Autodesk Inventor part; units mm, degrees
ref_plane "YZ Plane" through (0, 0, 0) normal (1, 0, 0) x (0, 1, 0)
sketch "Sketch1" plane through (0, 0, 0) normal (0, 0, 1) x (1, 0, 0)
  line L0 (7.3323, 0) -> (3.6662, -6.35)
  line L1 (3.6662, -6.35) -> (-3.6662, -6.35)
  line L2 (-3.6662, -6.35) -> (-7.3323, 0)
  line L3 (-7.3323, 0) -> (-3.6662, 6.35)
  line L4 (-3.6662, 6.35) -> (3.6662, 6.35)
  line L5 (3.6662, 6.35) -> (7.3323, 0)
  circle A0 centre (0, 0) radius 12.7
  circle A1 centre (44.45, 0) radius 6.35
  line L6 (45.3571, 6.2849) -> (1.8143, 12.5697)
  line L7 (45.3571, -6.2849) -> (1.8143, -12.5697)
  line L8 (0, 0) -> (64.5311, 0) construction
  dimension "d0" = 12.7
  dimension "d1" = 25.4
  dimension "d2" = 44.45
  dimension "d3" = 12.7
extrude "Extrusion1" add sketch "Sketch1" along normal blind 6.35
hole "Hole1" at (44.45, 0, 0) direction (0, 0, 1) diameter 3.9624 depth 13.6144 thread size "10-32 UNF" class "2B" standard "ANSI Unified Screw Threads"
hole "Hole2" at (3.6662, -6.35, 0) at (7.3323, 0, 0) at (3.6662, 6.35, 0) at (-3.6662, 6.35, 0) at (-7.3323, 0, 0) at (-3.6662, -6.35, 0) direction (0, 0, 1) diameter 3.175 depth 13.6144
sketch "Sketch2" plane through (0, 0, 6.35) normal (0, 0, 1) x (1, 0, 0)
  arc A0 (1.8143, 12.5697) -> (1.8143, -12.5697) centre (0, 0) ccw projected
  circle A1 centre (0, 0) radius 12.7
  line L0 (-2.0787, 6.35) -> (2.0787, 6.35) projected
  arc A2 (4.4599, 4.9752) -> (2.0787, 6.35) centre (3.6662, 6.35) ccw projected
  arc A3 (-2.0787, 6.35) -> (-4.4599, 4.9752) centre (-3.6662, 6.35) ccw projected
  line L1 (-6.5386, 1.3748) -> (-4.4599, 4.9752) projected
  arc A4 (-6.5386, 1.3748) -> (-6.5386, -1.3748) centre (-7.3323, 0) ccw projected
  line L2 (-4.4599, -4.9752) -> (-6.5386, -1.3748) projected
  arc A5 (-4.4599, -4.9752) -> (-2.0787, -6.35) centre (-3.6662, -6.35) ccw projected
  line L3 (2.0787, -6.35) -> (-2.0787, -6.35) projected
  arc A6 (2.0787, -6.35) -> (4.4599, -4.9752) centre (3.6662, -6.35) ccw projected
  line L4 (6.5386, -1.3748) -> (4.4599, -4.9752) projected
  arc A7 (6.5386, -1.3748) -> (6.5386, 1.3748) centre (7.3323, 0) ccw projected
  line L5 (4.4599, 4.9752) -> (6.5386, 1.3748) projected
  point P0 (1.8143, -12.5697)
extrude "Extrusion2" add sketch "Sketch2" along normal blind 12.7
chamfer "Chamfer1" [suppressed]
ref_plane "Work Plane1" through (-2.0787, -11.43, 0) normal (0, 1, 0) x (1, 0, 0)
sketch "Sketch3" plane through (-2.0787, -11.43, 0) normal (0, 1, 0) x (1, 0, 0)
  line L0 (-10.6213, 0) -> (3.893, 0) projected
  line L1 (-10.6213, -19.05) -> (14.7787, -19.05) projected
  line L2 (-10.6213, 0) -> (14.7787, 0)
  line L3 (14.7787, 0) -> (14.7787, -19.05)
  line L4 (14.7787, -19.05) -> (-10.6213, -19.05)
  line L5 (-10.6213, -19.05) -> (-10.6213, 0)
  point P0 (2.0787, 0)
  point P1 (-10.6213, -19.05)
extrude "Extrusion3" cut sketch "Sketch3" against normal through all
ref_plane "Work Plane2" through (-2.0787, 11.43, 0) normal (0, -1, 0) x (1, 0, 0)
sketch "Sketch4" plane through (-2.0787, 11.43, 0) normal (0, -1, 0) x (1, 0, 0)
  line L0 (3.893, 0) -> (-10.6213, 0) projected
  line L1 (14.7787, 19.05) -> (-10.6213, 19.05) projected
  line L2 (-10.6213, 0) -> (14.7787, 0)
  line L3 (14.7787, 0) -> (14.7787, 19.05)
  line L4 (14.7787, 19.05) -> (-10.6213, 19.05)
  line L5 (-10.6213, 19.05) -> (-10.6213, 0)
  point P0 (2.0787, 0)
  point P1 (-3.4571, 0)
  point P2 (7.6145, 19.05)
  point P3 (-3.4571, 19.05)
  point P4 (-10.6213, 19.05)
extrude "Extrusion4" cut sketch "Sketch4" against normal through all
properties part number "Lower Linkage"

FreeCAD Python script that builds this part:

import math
import FreeCAD as App
import Part
import Sketcher
from FreeCAD import Vector
Q = App.Units.Quantity


def add_polygon(sketch, points):
    """Adds a closed chain of lines whose ends are joined by coincident constraints."""
    first, n = sketch.GeometryCount, len(points)
    for a, b in zip(points, points[1:] + points[:1]):
        sketch.addGeometry(Part.LineSegment(App.Vector(*a, 0), App.Vector(*b, 0)), False)
    for i in range(n):
        sketch.addConstraint(Sketcher.Constraint("Coincident", first + i, 2, first + (i + 1) % n, 1))

doc = App.newDocument("Part")
body = doc.addObject("PartDesign::Body", "Body")

# Sketch on XY plane
sketch1 = body.newObject("Sketcher::SketchObject", "Sketch")
sketch1.AttachmentSupport = (doc.getObject("XY_Plane"), [""])
sketch1.MapMode = "FlatFace"
sketch1.addGeometry(Part.ArcOfCircle(Part.Circle(Vector(0, 0, 0), Vector(0, 0, 1), 12.7), math.radians(81.7867), math.radians(278.2133)), False)  # 0
sketch1.addGeometry(Part.LineSegment(Vector(1.8143, -12.5697, 0), Vector(45.3571, -6.2849, 0)), False)  # 1
sketch1.addGeometry(Part.ArcOfCircle(Part.Circle(Vector(44.45, 0, 0), Vector(0, 0, 1), 6.35), math.radians(-81.787211), math.radians(81.787211)), False)  # 2
sketch1.addGeometry(Part.LineSegment(Vector(45.3571, 6.2849, 0), Vector(1.8143, 12.5697, 0)), False)  # 3
add_polygon(sketch1, [(3.6662, 6.35), (7.3323, 0), (3.6662, -6.35), (-3.6662, -6.35), (-7.3323, 0), (-3.6662, 6.35)])  # lines 4-9
sketch1.addConstraint([
    Sketcher.Constraint("Tangent", 0, 2, 1, 1),
    Sketcher.Constraint("Tangent", 1, 2, 2, 1),
    Sketcher.Constraint("Tangent", 2, 2, 3, 1),
    Sketcher.Constraint("Tangent", 3, 2, 0, 1),
    Sketcher.Constraint("Horizontal", 6),
    Sketcher.Constraint("Horizontal", 9),
    Sketcher.Constraint("Coincident", 0, 3, -1, 1),
    Sketcher.Constraint("Symmetric", 4, 2, 7, 2, -1, 1),
    Sketcher.Constraint("Symmetric", 5, 2, 8, 2, -1, 1),
    Sketcher.Constraint("PointOnObject", 2, 3, -1),
    Sketcher.Constraint("PointOnObject", 4, 2, -1),
    Sketcher.Constraint("Parallel", 4, 7),
    Sketcher.Constraint("Vertical", 6, 2, 8, 2),
    Sketcher.Constraint("Radius", 0, Q("0.5 in")),
    Sketcher.Constraint("Radius", 2, Q("0.25 in")),
    Sketcher.Constraint("DistanceY", 6, 2, 8, 2, Q("0.5 in")),
    Sketcher.Constraint("DistanceX", -1, 1, 2, 3, Q("1.75 in")),
    Sketcher.Constraint("Angle", 4, Q("-60.0005 deg")),
    Sketcher.Constraint("DistanceX", 6, 2, 4, 2, Q("0.433 in")),
])
pad1 = body.newObject("PartDesign::Pad", "Pad")
pad1.Profile = sketch1
pad1.Length = Q("0.25 in")

# Sketch on XY plane
sketch2 = body.newObject("Sketcher::SketchObject", "Sketch001")
sketch2.AttachmentSupport = (doc.getObject("XY_Plane"), [""])
sketch2.MapMode = "FlatFace"
sketch2.addGeometry(Part.Circle(Vector(44.45, 0, 0), Vector(0, 0, 1), 1.9812), False)
sketch2.addConstraint([
    Sketcher.Constraint("PointOnObject", 0, 3, -1),
    Sketcher.Constraint("Diameter", 0, Q("0.156 in")),
    Sketcher.Constraint("DistanceX", -1, 1, 0, 3, Q("1.75 in")),
])
doc.recompute()
hole = body.newObject("PartDesign::Hole", "Hole")
hole.Profile = sketch2
hole.ThreadType = "None"
hole.Diameter = Q("0.156 in")
hole.DepthType = "Dimension"
hole.Depth = Q("0.536 in")
hole.DrillPoint = "Flat"
hole.Reversed = True

# Sketch on XY plane
sketch3 = body.newObject("Sketcher::SketchObject", "Sketch002")
sketch3.AttachmentSupport = (doc.getObject("XY_Plane"), [""])
sketch3.MapMode = "FlatFace"
sketch3.addGeometry([
    Part.Circle(Vector(3.6662, -6.35, 0), Vector(0, 0, 1), 1.5875),  # 0
    Part.Circle(Vector(7.3323, 0, 0), Vector(0, 0, 1), 1.5875),  # 1
    Part.Circle(Vector(3.6662, 6.35, 0), Vector(0, 0, 1), 1.5875),  # 2
    Part.Circle(Vector(-3.6662, 6.35, 0), Vector(0, 0, 1), 1.5875),  # 3
    Part.Circle(Vector(-7.3323, 0, 0), Vector(0, 0, 1), 1.5875),  # 4
    Part.Circle(Vector(-3.6662, -6.35, 0), Vector(0, 0, 1), 1.5875),  # 5
], False)
sketch3.addConstraint([
    Sketcher.Constraint("Equal", 0, 1),
    Sketcher.Constraint("Equal", 1, 2),
    Sketcher.Constraint("Equal", 2, 3),
    Sketcher.Constraint("Equal", 3, 4),
    Sketcher.Constraint("Equal", 4, 5),
    Sketcher.Constraint("Symmetric", 0, 3, 3, 3, -1, 1),
    Sketcher.Constraint("Symmetric", 1, 3, 4, 3, -1, 1),
    Sketcher.Constraint("Symmetric", 2, 3, 5, 3, -1, 1),
    Sketcher.Constraint("Symmetric", 2, 3, 3, 3, -2),
    Sketcher.Constraint("PointOnObject", 1, 3, -1),
    Sketcher.Constraint("Diameter", 0, Q("0.125 in")),
    Sketcher.Constraint("DistanceY", 0, 3, 2, 3, Q("0.5 in")),
    Sketcher.Constraint("DistanceX", 3, 3, 1, 3, Q("0.433 in")),
    Sketcher.Constraint("DistanceX", -1, 1, 0, 3, Q("3.6662 mm")),
])
doc.recompute()
hole2 = body.newObject("PartDesign::Hole", "Hole001")
hole2.Profile = sketch3
hole2.ThreadType = "None"
hole2.Diameter = Q("0.125 in")
hole2.DepthType = "Dimension"
hole2.Depth = Q("0.536 in")
hole2.DrillPoint = "Flat"
hole2.Reversed = True

# Sketch on XY plane
sketch4 = body.newObject("Sketcher::SketchObject", "Sketch003")
sketch4.AttachmentSupport = (doc.getObject("XY_Plane"), [""])
sketch4.MapMode = "FlatFace"
sketch4.AttachmentOffset = App.Placement(Vector(0, 0, 0.25 * 25.4), App.Rotation())
sketch4.addGeometry([
    Part.Circle(Vector(0, 0, 0), Vector(0, 0, 1), 12.699962),  # 0
    Part.ArcOfCircle(Part.Circle(Vector(-3.6662, 6.35, 0), Vector(0, 0, 1), 1.5875), math.radians(0), math.radians(240.001286)),  # 1
    Part.LineSegment(Vector(-2.0787, 6.35, 0), Vector(2.0787, 6.35, 0)),  # 2
    Part.ArcOfCircle(Part.Circle(Vector(3.6662, 6.35, 0), Vector(0, 0, 1), 1.587462), math.radians(-60.001286), math.radians(180)),  # 3
    Part.LineSegment(Vector(4.4599, 4.9752, 0), Vector(6.5386, 1.3748, 0)),  # 4
    Part.ArcOfCircle(Part.Circle(Vector(7.3323, 0, 0), Vector(0, 0, 1), 1.587462), math.radians(-119.998714), math.radians(119.998714)),  # 5
    Part.LineSegment(Vector(6.5386, -1.3748, 0), Vector(4.4599, -4.9752, 0)),  # 6
    Part.ArcOfCircle(Part.Circle(Vector(3.6662, -6.35, 0), Vector(0, 0, 1), 1.5875), math.radians(180), math.radians(420.001286)),  # 7
    Part.LineSegment(Vector(2.0787, -6.35, 0), Vector(-2.0787, -6.35, 0)),  # 8
    Part.ArcOfCircle(Part.Circle(Vector(-3.6662, -6.35, 0), Vector(0, 0, 1), 1.587462), math.radians(119.998714), math.radians(360)),  # 9
    Part.LineSegment(Vector(-4.4599, -4.9752, 0), Vector(-6.5386, -1.3748, 0)),  # 10
    Part.ArcOfCircle(Part.Circle(Vector(-7.3323, 0, 0), Vector(0, 0, 1), 1.587462), math.radians(60.001286), math.radians(299.998714)),  # 11
    Part.LineSegment(Vector(-6.5386, 1.3748, 0), Vector(-4.4599, 4.9752, 0)),  # 12
], False)
sketch4.addConstraint([
    Sketcher.Constraint("Coincident", 1, 1, 2, 1),
    Sketcher.Constraint("Coincident", 2, 2, 3, 2),
    Sketcher.Constraint("Coincident", 3, 1, 4, 1),
    Sketcher.Constraint("Coincident", 4, 2, 5, 2),
    Sketcher.Constraint("Coincident", 5, 1, 6, 1),
    Sketcher.Constraint("Coincident", 6, 2, 7, 2),
    Sketcher.Constraint("Coincident", 7, 1, 8, 1),
    Sketcher.Constraint("Coincident", 8, 2, 9, 2),
    Sketcher.Constraint("Coincident", 9, 1, 10, 1),
    Sketcher.Constraint("Coincident", 10, 2, 11, 2),
    Sketcher.Constraint("Coincident", 11, 1, 12, 1),
    Sketcher.Constraint("Coincident", 12, 2, 1, 2),
    Sketcher.Constraint("Horizontal", 2),
    Sketcher.Constraint("Horizontal", 8),
    Sketcher.Constraint("Coincident", 0, 3, -1, 1),
    Sketcher.Constraint("Equal", 1, 3),
    Sketcher.Constraint("Equal", 3, 5),
    Sketcher.Constraint("Equal", 5, 7),
    Sketcher.Constraint("Equal", 7, 9),
    Sketcher.Constraint("Equal", 9, 11),
    Sketcher.Constraint("Symmetric", 1, 3, 7, 3, -1, 1),
    Sketcher.Constraint("Symmetric", 3, 3, 9, 3, -1, 1),
    Sketcher.Constraint("Symmetric", 5, 3, 11, 3, -1, 1),
    Sketcher.Constraint("Symmetric", 1, 3, 3, 3, -2),
    Sketcher.Constraint("Symmetric", 5, 1, 10, 2, -2),
    Sketcher.Constraint("Parallel", 4, 10),
    Sketcher.Constraint("Parallel", 6, 12),
    Sketcher.Constraint("Horizontal", 3, 3, 1, 1),
    Sketcher.Constraint("Horizontal", 9, 3, 7, 1),
    Sketcher.Constraint("Horizontal", 6, 2, 9, 1),
    Sketcher.Constraint("Horizontal", 4, 2, 11, 1),
    Sketcher.Constraint("Vertical", 4, 2, 5, 1),
    Sketcher.Constraint("Diameter", 0, Q("1 in")),
    Sketcher.Constraint("Angle", 4, Q("-60 deg")),
    Sketcher.Constraint("Radius", 1, Q("0.0625 in")),
    Sketcher.Constraint("DistanceY", 7, 3, 3, 3, Q("0.5 in")),
    Sketcher.Constraint("DistanceY", 5, 1, 3, 1, Q("0.25 in")),
    Sketcher.Constraint("DistanceX", 1, 3, 5, 3, Q("0.433 in")),
    Sketcher.Constraint("DistanceX", 3, 3, 3, 1, Q("0.031248 in")),
])
pad2 = body.newObject("PartDesign::Pad", "Pad001")
pad2.Profile = sketch4
pad2.Length = Q("0.5 in")

# Sketch on XZ plane
sketch5 = body.newObject("Sketcher::SketchObject", "Sketch004")
sketch5.AttachmentSupport = (doc.getObject("XZ_Plane"), [""])
sketch5.MapMode = "FlatFace"
sketch5.AttachmentOffset = App.Placement(Vector(0, 0, 0.45 * 25.4), App.Rotation())
add_polygon(sketch5, [(12.7, 0), (-12.7, 0), (-12.7, 19.05), (12.7, 19.05)])  # lines 0-3
sketch5.addConstraint([
    Sketcher.Constraint("Horizontal", 0),
    Sketcher.Constraint("Vertical", 1),
    Sketcher.Constraint("Horizontal", 2),
    Sketcher.Constraint("Vertical", 3),
    Sketcher.Constraint("Symmetric", 0, 2, 3, 2, -1, 1),
    Sketcher.Constraint("DistanceX", 0, 2, 0, 1, Q("1 in")),
    Sketcher.Constraint("DistanceY", 1, 1, 1, 2, Q("0.75 in")),
])
pocket1 = body.newObject("PartDesign::Pocket", "Pocket")
pocket1.Profile = sketch5
pocket1.Type = "ThroughAll"
pocket1.Reversed = True

# Sketch on XZ plane
sketch6 = body.newObject("Sketcher::SketchObject", "Sketch005")
sketch6.AttachmentSupport = (doc.getObject("XZ_Plane"), [""])
sketch6.MapMode = "FlatFace"
sketch6.AttachmentOffset = App.Placement(Vector(0, 0, -0.45 * 25.4), App.Rotation())
add_polygon(sketch6, [(-12.7, 0), (12.7, 0), (12.7, 19.05), (-12.7, 19.05)])  # lines 0-3
sketch6.addConstraint([
    Sketcher.Constraint("Horizontal", 0),
    Sketcher.Constraint("Vertical", 1),
    Sketcher.Constraint("Horizontal", 2),
    Sketcher.Constraint("Vertical", 3),
    Sketcher.Constraint("Symmetric", 0, 2, 3, 2, -1, 1),
    Sketcher.Constraint("DistanceX", 0, 1, 0, 2, Q("1 in")),
    Sketcher.Constraint("DistanceY", 1, 1, 1, 2, Q("0.75 in")),
])
pocket2 = body.newObject("PartDesign::Pocket", "Pocket001")
pocket2.Profile = sketch6
pocket2.Type = "ThroughAll"

doc.recompute()
